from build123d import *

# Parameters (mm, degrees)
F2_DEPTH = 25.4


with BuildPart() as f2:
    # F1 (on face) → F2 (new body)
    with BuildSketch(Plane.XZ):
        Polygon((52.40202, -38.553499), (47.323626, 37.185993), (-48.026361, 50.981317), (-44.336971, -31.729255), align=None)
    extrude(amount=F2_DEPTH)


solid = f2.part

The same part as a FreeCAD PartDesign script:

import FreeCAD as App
import Part
import Sketcher

V = App.Vector
Q = App.Units.Quantity

doc = App.newDocument("Part")
body = doc.addObject("PartDesign::Body", "Body")

sketch1 = doc.addObject("Sketcher::SketchObject", "Sketch")
body.addObject(sketch1)
sketch1.AttachmentSupport = (doc.XZ_Plane, [""])
sketch1.MapMode = "FlatFace"
sketch1.addGeometry(Part.LineSegment(V(52, -39, 0), V(47, 37, 0)), False)
sketch1.addGeometry(Part.LineSegment(V(47, 37, 0), V(-48, 51, 0)), False)
sketch1.addGeometry(Part.LineSegment(V(-48, 51, 0), V(-44, -32, 0)), False)
sketch1.addGeometry(Part.LineSegment(V(-44, -32, 0), V(52, -39, 0)), False)
sketch1.addConstraint(Sketcher.Constraint("Coincident", 0, 2, 1, 1))
sketch1.addConstraint(Sketcher.Constraint("Coincident", 1, 2, 2, 1))
sketch1.addConstraint(Sketcher.Constraint("Coincident", 2, 2, 3, 1))
sketch1.addConstraint(Sketcher.Constraint("Coincident", 3, 2, 0, 1))
sketch1.addConstraint(Sketcher.Constraint("DistanceY", 3, 2, -1, 1, Q("38.553499 mm")))
sketch1.addConstraint(Sketcher.Constraint("Distance", 1, Q("96.342779 mm")))
sketch1.addConstraint(Sketcher.Constraint("DistanceX", 1, 2, -1, 1, Q("48.026361 mm")))
sketch1.addConstraint(Sketcher.Constraint("DistanceX", 2, 2, -1, 1, Q("44.336971 mm")))
sketch1.addConstraint(Sketcher.Constraint("DistanceX", -1, 1, 3, 2, Q("52.40202 mm")))
sketch1.addConstraint(Sketcher.Constraint("DistanceY", 2, 2, 1, 2, Q("82.710572 mm")))
sketch1.addConstraint(Sketcher.Constraint("DistanceY", 2, 2, 0, 2, Q("68.915248 mm")))
sketch1.addConstraint(Sketcher.Constraint("Distance", 0, Q("75.909556 mm")))
pad1 = doc.addObject("PartDesign::Pad", "Pad")
body.addObject(pad1)
pad1.Profile = sketch1
pad1.Length = Q("1 in")

doc.recompute()
